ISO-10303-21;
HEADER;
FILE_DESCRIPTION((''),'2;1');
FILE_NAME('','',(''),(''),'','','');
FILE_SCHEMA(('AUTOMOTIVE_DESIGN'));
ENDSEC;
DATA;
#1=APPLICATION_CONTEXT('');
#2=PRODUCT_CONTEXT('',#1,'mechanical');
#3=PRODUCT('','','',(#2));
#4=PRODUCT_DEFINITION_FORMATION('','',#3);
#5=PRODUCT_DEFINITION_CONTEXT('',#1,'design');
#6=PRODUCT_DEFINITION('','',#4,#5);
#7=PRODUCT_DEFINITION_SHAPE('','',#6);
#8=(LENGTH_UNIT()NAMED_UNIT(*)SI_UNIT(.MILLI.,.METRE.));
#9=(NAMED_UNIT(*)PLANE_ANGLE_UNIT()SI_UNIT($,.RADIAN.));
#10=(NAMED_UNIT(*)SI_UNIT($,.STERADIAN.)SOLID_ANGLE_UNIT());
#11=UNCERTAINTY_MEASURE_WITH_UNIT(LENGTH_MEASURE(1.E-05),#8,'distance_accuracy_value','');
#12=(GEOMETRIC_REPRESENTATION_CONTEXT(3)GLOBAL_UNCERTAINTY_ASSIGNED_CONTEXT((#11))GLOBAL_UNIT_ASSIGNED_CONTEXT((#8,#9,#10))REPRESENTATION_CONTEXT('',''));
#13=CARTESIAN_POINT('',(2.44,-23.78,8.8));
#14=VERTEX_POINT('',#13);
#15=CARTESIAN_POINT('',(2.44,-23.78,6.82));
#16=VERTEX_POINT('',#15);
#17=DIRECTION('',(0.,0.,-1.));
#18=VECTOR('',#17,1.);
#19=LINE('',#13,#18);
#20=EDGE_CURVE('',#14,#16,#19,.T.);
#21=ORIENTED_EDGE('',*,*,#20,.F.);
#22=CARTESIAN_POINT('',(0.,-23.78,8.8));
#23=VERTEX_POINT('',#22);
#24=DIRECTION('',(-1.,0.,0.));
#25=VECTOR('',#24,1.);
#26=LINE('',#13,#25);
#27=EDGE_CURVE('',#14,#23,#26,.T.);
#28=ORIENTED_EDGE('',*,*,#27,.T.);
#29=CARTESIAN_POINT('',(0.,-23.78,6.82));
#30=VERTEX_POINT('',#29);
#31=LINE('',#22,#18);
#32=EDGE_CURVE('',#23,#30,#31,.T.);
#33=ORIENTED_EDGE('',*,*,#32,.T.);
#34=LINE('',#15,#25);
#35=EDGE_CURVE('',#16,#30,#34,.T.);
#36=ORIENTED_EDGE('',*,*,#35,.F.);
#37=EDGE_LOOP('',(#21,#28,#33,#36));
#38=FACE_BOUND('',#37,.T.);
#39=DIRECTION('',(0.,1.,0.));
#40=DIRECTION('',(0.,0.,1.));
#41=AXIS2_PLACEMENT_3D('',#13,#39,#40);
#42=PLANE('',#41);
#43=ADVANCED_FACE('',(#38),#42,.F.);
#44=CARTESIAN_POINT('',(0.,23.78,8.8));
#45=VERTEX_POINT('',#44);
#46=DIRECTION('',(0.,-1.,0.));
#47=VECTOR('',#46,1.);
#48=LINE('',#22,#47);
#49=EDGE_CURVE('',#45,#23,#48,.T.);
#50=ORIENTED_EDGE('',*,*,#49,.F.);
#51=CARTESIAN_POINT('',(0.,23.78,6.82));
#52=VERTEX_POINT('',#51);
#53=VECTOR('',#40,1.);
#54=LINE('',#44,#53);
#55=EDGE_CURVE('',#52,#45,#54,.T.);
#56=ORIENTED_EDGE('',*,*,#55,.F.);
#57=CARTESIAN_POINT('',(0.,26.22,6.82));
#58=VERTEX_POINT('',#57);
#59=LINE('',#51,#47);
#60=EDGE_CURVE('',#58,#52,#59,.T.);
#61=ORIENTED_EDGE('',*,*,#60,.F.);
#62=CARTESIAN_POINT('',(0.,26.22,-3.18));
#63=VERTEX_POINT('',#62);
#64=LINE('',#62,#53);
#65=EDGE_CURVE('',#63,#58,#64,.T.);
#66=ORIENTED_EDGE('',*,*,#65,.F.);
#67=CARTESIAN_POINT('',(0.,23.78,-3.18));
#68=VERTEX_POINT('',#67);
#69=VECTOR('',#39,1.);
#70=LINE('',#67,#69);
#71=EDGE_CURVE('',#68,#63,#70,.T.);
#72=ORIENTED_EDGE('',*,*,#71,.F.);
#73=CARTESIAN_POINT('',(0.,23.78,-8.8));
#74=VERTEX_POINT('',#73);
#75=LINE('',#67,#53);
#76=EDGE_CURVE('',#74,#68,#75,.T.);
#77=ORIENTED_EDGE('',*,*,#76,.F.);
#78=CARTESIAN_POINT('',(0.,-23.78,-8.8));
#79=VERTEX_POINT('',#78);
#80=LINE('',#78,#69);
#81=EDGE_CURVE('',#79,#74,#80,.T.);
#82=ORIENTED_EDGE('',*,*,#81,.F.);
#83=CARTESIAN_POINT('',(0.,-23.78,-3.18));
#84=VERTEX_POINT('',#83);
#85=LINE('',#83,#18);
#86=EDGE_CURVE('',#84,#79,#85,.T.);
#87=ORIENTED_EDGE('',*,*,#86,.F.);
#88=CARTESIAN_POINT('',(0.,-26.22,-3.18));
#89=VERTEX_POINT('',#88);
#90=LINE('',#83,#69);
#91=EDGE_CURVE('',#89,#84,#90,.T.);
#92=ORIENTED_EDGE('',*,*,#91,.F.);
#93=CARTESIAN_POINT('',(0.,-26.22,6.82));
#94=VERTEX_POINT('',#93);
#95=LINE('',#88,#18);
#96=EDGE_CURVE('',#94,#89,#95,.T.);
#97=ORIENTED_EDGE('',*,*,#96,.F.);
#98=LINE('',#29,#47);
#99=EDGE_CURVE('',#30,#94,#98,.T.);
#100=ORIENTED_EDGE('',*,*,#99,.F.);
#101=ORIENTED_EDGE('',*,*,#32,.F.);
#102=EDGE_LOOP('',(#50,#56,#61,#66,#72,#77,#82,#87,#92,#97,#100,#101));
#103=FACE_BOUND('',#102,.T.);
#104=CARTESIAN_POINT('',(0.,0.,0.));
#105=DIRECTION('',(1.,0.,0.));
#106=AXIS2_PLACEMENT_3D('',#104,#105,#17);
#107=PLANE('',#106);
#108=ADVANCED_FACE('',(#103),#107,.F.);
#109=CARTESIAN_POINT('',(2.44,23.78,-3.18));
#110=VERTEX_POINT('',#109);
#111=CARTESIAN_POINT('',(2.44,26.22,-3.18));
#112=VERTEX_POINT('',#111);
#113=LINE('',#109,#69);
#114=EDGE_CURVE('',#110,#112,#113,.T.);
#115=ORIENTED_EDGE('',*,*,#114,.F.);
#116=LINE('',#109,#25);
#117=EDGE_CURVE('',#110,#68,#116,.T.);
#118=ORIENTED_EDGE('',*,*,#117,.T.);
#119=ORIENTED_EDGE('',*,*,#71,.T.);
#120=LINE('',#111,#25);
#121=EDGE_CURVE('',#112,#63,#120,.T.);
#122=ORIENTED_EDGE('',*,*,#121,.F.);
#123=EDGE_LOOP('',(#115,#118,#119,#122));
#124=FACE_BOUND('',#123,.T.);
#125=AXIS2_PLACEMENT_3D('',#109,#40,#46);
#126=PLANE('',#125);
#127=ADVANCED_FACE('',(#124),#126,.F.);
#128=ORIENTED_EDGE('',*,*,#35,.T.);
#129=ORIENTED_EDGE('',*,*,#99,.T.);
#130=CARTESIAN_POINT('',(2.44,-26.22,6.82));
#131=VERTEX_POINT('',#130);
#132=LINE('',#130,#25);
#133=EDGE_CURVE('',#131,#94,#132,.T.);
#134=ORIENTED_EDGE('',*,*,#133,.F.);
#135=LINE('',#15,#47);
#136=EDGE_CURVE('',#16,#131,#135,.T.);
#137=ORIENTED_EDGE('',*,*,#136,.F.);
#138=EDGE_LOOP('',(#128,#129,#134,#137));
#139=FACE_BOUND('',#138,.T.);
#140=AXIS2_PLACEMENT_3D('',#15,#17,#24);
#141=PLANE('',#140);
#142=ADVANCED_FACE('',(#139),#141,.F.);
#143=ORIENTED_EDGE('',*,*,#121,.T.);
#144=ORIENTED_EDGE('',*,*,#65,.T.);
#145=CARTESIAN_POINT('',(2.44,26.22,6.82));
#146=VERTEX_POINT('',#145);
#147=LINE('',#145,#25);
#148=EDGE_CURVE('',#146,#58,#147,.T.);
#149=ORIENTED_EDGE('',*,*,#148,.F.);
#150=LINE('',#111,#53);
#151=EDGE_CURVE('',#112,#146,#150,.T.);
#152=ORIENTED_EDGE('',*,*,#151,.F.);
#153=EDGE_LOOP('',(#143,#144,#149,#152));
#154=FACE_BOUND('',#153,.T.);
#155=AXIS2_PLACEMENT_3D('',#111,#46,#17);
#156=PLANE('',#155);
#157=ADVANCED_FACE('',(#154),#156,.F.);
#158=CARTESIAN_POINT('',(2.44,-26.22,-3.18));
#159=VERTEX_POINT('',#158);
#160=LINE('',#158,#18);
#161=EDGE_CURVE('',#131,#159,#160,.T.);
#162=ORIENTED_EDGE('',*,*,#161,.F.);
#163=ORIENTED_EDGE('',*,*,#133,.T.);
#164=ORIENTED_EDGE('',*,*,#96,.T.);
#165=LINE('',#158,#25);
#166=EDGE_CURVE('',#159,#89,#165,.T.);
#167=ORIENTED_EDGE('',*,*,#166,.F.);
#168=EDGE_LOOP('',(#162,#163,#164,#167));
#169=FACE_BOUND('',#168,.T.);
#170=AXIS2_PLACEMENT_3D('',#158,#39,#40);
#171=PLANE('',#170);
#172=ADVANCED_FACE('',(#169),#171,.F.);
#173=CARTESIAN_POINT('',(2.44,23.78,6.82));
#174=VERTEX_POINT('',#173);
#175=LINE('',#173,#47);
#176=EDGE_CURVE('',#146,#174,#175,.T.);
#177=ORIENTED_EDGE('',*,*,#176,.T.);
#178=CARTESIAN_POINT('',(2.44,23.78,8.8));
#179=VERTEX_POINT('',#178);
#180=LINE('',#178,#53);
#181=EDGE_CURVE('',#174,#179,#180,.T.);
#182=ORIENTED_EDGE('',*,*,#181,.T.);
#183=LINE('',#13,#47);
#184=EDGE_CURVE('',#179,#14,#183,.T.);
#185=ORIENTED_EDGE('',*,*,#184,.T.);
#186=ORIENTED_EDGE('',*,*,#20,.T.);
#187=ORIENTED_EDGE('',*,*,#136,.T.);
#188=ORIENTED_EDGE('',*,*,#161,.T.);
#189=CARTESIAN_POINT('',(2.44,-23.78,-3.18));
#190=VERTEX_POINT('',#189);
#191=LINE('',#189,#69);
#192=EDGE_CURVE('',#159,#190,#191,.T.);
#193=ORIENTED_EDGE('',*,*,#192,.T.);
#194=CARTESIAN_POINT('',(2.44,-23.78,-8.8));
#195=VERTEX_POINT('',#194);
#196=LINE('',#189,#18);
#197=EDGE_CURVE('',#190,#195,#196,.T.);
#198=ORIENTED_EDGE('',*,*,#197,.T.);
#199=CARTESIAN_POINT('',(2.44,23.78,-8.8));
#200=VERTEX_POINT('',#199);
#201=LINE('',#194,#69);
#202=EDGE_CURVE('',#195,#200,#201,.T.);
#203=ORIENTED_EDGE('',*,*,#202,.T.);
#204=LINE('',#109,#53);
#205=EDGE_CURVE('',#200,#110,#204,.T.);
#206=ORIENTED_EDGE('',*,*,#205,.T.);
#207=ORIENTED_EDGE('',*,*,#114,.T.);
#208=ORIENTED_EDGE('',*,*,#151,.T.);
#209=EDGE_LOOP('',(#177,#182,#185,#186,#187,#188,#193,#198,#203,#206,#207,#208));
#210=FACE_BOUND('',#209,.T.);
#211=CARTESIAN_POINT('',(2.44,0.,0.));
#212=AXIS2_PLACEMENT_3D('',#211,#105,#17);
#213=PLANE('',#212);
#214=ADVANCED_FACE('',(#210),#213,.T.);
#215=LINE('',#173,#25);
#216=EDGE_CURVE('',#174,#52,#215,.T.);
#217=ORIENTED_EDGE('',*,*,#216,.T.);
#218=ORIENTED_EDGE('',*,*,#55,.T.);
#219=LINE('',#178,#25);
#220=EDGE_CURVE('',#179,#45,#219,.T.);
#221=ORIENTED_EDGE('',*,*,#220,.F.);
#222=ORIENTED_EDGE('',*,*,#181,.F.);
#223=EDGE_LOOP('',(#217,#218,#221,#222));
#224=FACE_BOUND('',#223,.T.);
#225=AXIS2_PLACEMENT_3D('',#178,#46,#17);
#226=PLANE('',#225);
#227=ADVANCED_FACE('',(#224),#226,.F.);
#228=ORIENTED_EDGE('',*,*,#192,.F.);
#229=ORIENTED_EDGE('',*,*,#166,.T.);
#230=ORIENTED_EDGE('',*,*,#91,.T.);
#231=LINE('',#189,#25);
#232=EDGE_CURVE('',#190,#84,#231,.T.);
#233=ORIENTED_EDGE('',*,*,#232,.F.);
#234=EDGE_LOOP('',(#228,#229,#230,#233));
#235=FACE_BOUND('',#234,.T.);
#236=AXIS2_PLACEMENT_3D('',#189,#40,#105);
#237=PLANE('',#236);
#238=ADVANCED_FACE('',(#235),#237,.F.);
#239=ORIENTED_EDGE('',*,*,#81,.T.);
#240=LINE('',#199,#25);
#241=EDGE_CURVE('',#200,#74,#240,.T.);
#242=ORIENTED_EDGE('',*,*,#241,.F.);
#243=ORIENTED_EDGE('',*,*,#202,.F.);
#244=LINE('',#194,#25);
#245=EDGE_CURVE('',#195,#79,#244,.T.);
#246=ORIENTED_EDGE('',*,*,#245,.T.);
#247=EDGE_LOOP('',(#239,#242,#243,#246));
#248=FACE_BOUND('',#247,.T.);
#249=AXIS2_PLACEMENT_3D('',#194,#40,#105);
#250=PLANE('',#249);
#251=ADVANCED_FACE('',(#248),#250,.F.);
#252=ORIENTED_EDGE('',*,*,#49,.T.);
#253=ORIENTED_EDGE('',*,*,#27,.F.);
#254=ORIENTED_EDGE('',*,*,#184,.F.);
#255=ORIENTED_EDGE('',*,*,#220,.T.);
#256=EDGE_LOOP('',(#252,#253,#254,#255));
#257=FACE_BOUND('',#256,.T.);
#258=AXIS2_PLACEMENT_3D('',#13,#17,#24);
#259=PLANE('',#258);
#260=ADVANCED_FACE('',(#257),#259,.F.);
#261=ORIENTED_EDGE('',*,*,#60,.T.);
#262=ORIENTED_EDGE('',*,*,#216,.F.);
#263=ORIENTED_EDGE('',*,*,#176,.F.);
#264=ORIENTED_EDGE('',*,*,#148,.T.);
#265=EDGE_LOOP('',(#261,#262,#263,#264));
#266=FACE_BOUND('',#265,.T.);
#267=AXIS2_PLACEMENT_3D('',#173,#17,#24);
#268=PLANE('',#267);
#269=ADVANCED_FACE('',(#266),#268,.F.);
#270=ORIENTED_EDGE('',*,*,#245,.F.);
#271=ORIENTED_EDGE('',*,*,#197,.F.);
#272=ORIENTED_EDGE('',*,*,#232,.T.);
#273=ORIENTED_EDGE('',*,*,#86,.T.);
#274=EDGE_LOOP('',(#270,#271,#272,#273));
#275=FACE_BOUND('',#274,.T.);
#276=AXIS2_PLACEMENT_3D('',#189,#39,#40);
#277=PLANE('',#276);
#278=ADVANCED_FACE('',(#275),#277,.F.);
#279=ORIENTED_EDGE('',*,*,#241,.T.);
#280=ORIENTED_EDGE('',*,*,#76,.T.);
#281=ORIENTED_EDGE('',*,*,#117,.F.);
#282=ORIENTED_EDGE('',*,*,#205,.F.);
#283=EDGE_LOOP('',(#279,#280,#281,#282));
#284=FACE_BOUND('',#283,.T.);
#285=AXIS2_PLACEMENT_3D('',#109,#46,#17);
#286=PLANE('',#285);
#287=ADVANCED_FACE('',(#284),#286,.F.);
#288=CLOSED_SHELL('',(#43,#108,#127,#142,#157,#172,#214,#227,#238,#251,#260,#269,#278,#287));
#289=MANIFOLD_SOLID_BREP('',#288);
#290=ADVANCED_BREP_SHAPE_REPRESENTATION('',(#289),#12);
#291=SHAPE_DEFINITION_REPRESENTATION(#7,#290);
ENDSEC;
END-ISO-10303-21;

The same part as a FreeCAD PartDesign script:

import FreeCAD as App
import Part
import Sketcher

V = App.Vector


def add_polygon(sketch, points):
    """Adds a closed chain of lines whose ends are joined by coincident constraints."""
    first, n = sketch.GeometryCount, len(points)
    for a, b in zip(points, points[1:] + points[:1]):
        sketch.addGeometry(Part.LineSegment(App.Vector(*a, 0), App.Vector(*b, 0)), False)
    for i in range(n):
        sketch.addConstraint(Sketcher.Constraint("Coincident", first + i, 2, first + (i + 1) % n, 1))

doc = App.newDocument("Part")
body = doc.addObject("PartDesign::Body", "Body")

sketch1 = body.newObject("Sketcher::SketchObject", "Sketch")
sketch1.AttachmentSupport = (doc.getObject("YZ_Plane"), [""])
sketch1.MapMode = "FlatFace"
add_polygon(sketch1, [(-23.78, -3.18), (-23.78, -8.8), (23.78, -8.8), (23.78, -3.18), (26.22, -3.18), (26.22, 6.82), (23.78, 6.82), (23.78, 8.8), (-23.78, 8.8), (-23.78, 6.82), (-26.22, 6.82), (-26.22, -3.18)])
sketch1.addConstraint([
    Sketcher.Constraint("Vertical", 0),
    Sketcher.Constraint("Horizontal", 1),
    Sketcher.Constraint("Vertical", 2),
    Sketcher.Constraint("Horizontal", 3),
    Sketcher.Constraint("Vertical", 4),
    Sketcher.Constraint("Horizontal", 5),
    Sketcher.Constraint("Vertical", 6),
    Sketcher.Constraint("Horizontal", 7),
    Sketcher.Constraint("Vertical", 8),
    Sketcher.Constraint("Horizontal", 9),
    Sketcher.Constraint("Vertical", 10),
    Sketcher.Constraint("Horizontal", 11),
    Sketcher.Constraint("Symmetric", 0, 2, 6, 2, -1, 1),
    Sketcher.Constraint("Symmetric", 5, 2, 8, 2, -2),
    Sketcher.Constraint("Symmetric", 3, 2, 10, 2, -2),
    Sketcher.Constraint("Vertical", 2, 2, 5, 2),
    Sketcher.Constraint("DistanceY", 4, 1, 4, 2, 10.0),
    Sketcher.Constraint("DistanceX", 0, 2, 3, 2, 50.0),
    Sketcher.Constraint("DistanceX", 1, 1, 1, 2, 47.56),
    Sketcher.Constraint("DistanceY", 0, 2, 0, 1, 5.62),
    Sketcher.Constraint("DistanceY", 6, 1, 6, 2, 1.98),
])
pad1 = body.newObject("PartDesign::Pad", "Pad")
pad1.Profile = sketch1
pad1.Length = 2.44

doc.recompute()
